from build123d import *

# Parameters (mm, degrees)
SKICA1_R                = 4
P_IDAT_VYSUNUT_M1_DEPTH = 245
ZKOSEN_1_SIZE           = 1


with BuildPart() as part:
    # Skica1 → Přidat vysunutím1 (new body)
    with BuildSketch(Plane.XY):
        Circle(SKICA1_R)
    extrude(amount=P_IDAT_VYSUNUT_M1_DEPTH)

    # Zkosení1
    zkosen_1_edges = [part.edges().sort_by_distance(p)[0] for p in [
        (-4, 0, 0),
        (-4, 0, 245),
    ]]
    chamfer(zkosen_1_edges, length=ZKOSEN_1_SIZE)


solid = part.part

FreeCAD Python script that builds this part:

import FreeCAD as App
import Part
import Sketcher

V = App.Vector
Q = App.Units.Quantity


def edges_at(feature, points):
    """Names of the edges that pass closest to the given points."""
    edges = feature.Shape.Edges
    near = lambda p: min(range(len(edges)), key=lambda i: edges[i].distToShape(Part.Vertex(*p))[0])
    return sorted({f"Edge{near(p) + 1}" for p in points})

doc = App.newDocument("Part")
body = doc.addObject("PartDesign::Body", "Body")

# Sketch on XY plane
sketch1 = body.newObject("Sketcher::SketchObject", "Sketch")
sketch1.AttachmentSupport = (doc.getObject("XY_Plane"), [""])
sketch1.MapMode = "FlatFace"
sketch1.addGeometry(Part.Circle(V(0, 0, 0), V(0, 0, 1), 4), False)
sketch1.addConstraint(Sketcher.Constraint("Coincident", 0, 3, -1, 1))
sketch1.addConstraint(Sketcher.Constraint("Diameter", 0, Q("8 mm")))
pad1 = body.newObject("PartDesign::Pad", "Pad")
pad1.Profile = sketch1
pad1.Length = 245
doc.recompute()

chamfer = body.newObject("PartDesign::Chamfer", "Chamfer")
chamfer.Base = (pad1, edges_at(pad1, [(-4, 0, 0), (-4, 0, 245)]))
chamfer.Size = 1

doc.recompute()
